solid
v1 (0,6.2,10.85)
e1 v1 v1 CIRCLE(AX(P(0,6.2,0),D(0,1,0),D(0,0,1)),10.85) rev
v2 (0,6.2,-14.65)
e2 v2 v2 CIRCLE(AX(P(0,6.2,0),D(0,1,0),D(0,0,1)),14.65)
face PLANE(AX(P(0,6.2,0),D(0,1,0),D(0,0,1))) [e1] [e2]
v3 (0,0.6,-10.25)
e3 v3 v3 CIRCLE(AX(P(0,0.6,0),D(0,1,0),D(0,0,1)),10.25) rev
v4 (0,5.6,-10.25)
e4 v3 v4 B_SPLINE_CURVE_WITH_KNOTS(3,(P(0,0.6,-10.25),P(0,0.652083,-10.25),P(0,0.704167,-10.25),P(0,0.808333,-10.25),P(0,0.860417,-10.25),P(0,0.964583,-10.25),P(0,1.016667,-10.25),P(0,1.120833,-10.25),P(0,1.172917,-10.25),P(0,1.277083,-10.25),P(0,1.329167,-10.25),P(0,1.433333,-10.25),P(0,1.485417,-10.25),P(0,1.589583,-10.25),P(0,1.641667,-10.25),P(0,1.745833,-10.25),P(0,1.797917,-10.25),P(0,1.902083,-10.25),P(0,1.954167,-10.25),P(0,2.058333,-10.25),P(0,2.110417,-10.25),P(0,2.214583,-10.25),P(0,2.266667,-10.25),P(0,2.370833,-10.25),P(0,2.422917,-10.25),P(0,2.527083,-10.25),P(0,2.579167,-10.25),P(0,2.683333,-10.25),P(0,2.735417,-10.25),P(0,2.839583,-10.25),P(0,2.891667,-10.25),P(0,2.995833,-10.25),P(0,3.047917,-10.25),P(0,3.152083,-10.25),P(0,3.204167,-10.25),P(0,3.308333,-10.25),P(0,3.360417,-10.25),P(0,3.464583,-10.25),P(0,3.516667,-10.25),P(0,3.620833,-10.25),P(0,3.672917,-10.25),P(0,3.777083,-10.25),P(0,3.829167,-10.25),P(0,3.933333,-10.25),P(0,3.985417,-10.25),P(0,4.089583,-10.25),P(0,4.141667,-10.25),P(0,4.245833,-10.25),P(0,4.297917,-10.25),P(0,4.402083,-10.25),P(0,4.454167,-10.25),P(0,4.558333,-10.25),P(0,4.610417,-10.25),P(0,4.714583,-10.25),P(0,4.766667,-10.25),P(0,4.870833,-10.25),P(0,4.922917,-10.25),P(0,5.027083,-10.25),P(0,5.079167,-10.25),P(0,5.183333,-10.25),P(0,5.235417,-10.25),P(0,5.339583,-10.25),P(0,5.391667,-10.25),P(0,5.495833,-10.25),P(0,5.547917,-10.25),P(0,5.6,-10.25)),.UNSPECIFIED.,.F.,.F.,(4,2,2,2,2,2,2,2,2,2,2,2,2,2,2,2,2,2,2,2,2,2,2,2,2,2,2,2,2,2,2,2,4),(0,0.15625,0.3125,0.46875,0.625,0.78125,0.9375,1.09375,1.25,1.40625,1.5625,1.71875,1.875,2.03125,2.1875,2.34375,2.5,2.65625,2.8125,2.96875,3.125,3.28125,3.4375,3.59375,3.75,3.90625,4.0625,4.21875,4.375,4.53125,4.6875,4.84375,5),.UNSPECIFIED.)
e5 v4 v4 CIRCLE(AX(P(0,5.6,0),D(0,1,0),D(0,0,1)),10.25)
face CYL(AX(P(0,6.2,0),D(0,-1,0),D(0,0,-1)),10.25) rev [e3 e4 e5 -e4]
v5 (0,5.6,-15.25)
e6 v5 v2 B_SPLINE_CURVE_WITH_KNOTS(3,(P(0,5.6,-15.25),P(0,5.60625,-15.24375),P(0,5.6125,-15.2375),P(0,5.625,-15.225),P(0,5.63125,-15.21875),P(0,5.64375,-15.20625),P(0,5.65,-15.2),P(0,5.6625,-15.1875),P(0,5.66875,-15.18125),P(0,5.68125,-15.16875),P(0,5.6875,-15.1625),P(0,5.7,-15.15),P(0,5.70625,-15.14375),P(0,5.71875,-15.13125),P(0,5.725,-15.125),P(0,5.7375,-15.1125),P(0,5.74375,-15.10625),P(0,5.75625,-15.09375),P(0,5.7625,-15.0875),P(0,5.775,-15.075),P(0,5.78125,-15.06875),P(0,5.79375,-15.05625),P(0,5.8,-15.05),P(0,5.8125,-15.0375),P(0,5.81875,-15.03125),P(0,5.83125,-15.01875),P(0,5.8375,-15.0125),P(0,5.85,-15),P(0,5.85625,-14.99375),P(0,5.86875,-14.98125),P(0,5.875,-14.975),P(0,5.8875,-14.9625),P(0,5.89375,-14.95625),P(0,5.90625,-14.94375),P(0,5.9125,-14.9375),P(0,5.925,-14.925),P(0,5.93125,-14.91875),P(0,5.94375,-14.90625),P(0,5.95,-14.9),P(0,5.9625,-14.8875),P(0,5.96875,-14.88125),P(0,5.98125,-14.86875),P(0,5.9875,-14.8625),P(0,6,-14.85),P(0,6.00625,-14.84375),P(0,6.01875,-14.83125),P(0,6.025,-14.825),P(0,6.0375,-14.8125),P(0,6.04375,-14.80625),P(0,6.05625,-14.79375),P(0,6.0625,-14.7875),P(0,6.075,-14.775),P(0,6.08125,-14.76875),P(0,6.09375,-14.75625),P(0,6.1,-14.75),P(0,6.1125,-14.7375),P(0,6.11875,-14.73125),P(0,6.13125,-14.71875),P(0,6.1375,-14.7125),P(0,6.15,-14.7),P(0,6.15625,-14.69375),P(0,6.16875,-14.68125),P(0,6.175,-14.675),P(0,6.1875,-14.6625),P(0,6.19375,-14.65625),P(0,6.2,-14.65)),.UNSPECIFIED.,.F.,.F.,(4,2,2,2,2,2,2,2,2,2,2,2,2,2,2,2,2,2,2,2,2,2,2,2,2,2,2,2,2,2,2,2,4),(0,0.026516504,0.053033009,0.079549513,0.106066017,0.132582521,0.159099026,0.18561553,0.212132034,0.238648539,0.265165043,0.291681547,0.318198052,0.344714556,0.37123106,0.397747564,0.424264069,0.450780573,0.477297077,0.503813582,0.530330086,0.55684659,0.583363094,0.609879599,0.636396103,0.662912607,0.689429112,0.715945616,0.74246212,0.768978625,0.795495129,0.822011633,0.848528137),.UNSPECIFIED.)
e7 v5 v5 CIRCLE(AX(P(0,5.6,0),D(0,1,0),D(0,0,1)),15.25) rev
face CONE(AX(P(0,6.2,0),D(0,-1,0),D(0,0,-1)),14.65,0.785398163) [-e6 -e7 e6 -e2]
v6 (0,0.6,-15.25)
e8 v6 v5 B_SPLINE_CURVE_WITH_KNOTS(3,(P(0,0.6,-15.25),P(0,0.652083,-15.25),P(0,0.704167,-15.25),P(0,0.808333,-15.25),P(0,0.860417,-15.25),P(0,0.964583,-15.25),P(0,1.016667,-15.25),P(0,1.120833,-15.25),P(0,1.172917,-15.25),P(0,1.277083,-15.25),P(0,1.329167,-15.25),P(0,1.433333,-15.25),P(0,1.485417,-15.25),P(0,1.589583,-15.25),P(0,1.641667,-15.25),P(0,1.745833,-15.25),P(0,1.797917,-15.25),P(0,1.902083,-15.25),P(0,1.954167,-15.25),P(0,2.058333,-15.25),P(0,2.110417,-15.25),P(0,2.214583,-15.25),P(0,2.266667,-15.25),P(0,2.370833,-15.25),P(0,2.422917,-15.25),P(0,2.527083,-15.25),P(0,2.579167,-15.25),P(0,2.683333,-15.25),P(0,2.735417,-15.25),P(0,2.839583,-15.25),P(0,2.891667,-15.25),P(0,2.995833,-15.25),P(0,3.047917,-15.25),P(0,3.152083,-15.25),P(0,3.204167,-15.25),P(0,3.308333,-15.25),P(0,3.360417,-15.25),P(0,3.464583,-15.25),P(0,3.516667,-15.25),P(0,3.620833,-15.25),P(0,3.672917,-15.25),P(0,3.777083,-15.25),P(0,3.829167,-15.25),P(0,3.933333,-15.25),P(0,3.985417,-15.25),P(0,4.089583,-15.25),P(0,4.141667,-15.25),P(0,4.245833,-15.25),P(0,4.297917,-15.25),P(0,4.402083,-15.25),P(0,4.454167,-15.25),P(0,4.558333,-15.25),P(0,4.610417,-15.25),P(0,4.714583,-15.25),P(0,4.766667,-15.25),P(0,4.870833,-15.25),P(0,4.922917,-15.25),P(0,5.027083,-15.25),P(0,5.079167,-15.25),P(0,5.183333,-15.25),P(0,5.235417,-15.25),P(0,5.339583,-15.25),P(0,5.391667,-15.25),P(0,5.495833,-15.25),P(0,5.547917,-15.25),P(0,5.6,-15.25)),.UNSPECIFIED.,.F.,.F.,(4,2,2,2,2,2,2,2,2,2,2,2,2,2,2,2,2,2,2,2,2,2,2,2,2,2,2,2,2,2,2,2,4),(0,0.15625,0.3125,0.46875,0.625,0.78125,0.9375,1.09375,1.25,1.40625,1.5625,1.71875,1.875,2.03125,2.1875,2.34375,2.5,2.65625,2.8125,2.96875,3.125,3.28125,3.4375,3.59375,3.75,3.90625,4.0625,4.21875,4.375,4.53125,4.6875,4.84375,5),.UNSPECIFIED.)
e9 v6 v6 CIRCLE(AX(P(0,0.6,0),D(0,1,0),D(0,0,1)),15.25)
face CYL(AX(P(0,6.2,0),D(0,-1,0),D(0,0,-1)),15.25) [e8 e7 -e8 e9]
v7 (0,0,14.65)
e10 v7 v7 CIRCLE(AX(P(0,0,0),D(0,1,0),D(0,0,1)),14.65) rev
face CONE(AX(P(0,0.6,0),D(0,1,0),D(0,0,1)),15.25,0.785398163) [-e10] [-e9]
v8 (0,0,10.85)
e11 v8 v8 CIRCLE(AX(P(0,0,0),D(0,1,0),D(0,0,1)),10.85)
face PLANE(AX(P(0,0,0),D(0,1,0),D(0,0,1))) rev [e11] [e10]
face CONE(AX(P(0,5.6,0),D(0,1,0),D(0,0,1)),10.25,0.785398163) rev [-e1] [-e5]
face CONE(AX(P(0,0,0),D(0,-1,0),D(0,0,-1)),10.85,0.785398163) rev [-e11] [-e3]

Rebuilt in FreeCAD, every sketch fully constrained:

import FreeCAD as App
import Part
import Sketcher

V = App.Vector


def edges_at(feature, points):
    """Names of the edges that pass closest to the given points."""
    edges = feature.Shape.Edges
    near = lambda p: min(range(len(edges)), key=lambda i: edges[i].distToShape(Part.Vertex(*p))[0])
    return sorted({f"Edge{near(p) + 1}" for p in points})

doc = App.newDocument("Part")
params = doc.addObject("Spreadsheet::Sheet", "Params")
for row, (alias, value) in enumerate([
    ("sketch1_diameter", "30.5 mm"),
    ("sketch1_diameter2", "20.5 mm"),
    ("pad1_length", "6.2 mm"),
    ("chamfer_size", "0.6 mm"),
], start=1):
    params.set(f"A{row}", alias)
    params.set(f"B{row}", "=" + value)
    params.setAlias(f"B{row}", alias)

body = doc.addObject("PartDesign::Body", "Body")

# Sketch on XZ plane
sketch1 = doc.addObject("Sketcher::SketchObject", "Sketch")
body.addObject(sketch1)
sketch1.AttachmentSupport = (doc.XZ_Plane, [""])
sketch1.MapMode = "FlatFace"
sketch1.addGeometry([
    Part.Circle(V(0, 0, 0), V(0, 0, 1), 15),
    Part.Circle(V(0, 0, 0), V(0, 0, 1), 10),
], False)
sketch1.addConstraint([
    Sketcher.Constraint("Coincident", 0, 3, -1, 1),
    Sketcher.Constraint("Coincident", 1, 3, -1, 1),
    Sketcher.Constraint("Diameter", 0, 30.5),
    Sketcher.Constraint("Diameter", 1, 20.5),
])
sketch1.setExpression("Constraints[2]", "Params.sketch1_diameter")
sketch1.setExpression("Constraints[3]", "Params.sketch1_diameter2")
pad1 = doc.addObject("PartDesign::Pad", "Pad")
body.addObject(pad1)
pad1.Profile = sketch1
pad1.setExpression("Length", "Params.pad1_length")
pad1.Reversed = True
doc.recompute()

chamfer = doc.addObject("PartDesign::Chamfer", "Chamfer")
body.addObject(chamfer)
chamfer.Base = (pad1, edges_at(pad1, [
    (0, 0, 15.25),
    (0, 6.2, 15.25),
    (0, 0, 10.25),
    (0, 6.2, 10.25),
]))
chamfer.setExpression("Size", "Params.chamfer_size")

doc.recompute()
